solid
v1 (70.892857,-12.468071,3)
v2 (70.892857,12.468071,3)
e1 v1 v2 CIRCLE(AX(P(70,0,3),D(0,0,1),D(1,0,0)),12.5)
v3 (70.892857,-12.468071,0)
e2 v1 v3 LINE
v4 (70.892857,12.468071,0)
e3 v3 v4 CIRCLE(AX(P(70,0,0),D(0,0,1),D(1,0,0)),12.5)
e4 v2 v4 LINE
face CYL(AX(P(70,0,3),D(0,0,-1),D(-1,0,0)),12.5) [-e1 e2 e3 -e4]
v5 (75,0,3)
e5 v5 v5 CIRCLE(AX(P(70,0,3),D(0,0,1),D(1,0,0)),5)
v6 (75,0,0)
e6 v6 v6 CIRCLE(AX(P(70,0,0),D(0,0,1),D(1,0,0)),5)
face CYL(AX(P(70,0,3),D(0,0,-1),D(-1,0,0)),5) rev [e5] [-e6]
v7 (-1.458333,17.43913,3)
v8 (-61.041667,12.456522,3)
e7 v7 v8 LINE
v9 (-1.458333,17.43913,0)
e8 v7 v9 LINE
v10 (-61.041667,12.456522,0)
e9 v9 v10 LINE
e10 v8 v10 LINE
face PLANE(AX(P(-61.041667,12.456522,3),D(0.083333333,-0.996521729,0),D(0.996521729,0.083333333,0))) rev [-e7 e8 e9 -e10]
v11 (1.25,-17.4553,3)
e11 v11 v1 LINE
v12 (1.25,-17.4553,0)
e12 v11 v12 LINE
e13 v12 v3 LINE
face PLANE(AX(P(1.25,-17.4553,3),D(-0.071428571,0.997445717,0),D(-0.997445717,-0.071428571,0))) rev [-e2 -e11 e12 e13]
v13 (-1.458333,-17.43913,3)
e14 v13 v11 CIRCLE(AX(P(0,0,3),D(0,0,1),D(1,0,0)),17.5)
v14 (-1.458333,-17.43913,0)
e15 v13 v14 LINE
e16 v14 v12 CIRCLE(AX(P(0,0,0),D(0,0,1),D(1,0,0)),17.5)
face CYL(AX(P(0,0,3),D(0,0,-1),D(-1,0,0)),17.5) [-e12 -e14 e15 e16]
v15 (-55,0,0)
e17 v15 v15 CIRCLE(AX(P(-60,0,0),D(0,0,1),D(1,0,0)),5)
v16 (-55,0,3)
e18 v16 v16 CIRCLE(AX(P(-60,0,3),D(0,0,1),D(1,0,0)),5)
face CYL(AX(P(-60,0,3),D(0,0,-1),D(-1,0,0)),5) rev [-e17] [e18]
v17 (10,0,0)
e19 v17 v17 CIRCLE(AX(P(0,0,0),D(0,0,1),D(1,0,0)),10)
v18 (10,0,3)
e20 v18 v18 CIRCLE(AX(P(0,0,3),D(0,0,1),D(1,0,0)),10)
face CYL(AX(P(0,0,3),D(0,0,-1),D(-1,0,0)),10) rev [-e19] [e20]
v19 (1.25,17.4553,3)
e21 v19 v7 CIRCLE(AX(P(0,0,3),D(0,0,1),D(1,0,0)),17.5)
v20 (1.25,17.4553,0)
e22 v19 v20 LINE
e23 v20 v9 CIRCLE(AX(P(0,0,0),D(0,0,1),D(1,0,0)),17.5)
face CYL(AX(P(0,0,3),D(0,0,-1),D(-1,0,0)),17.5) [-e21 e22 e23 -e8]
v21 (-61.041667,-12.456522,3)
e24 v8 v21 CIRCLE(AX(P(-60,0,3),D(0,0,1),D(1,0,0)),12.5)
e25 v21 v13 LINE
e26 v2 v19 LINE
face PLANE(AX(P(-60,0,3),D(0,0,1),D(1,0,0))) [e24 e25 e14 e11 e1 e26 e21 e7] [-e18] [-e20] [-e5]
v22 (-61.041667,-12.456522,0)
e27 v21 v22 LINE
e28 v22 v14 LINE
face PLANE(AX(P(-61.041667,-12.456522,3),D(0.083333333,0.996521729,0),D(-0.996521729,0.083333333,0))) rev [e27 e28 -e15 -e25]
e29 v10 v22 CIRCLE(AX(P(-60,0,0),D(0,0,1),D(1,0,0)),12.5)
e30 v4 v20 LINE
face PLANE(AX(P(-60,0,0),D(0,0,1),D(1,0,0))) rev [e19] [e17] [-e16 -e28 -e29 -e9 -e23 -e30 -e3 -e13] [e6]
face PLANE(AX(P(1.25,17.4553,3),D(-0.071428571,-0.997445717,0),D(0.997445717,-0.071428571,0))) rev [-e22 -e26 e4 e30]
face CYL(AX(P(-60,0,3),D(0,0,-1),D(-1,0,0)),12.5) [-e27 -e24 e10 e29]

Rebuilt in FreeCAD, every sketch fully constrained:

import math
import FreeCAD as App
import Part
import Sketcher
from FreeCAD import Vector

doc = App.newDocument("Part")
params = doc.addObject("Spreadsheet::Sheet", "Params")
for row, (alias, value) in enumerate([
    ("sketch1_diameter", "10 mm"),
    ("sketch1_diameter2", "20 mm"),
    ("sketch1_radius", "12.5 mm"),
    ("sketch1_radius2", "17.5 mm"),
    ("pad1_length", "3 mm"),
], start=1):
    params.set(f"A{row}", alias)
    params.set(f"B{row}", "=" + value)
    params.setAlias(f"B{row}", alias)

body = doc.addObject("PartDesign::Body", "Body")

# Sketch on XY plane
sketch1 = doc.addObject("Sketcher::SketchObject", "Sketch")
body.addObject(sketch1)
sketch1.AttachmentSupport = (doc.XY_Plane, [""])
sketch1.MapMode = "FlatFace"
sketch1.addGeometry(Part.LineSegment(Vector(-1.5, 17.4, 0), Vector(-61, 12.5, 0)), False)
sketch1.addGeometry(Part.ArcOfCircle(Part.Circle(Vector(-60, 0, 0), Vector(0, 0, 1), 12.5), math.radians(95), math.radians(265)), False)
sketch1.addGeometry(Part.LineSegment(Vector(-61, -12.5, 0), Vector(-1.5, -17.4, 0)), False)
sketch1.addGeometry(Part.ArcOfCircle(Part.Circle(Vector(0, 0, 0), Vector(0, 0, 1), 17.5), math.radians(-94.78), math.radians(-85.9)), False)
sketch1.addGeometry(Part.LineSegment(Vector(1.2, -17.5, 0), Vector(70.9, -12.5, 0)), False)
sketch1.addGeometry(Part.ArcOfCircle(Part.Circle(Vector(70, 0, 0), Vector(0, 0, 1), 12.5), math.radians(-86), math.radians(86)), False)
sketch1.addGeometry(Part.LineSegment(Vector(70.9, 12.5, 0), Vector(1.2, 17.5, 0)), False)
sketch1.addGeometry(Part.ArcOfCircle(Part.Circle(Vector(0, 0, 0), Vector(0, 0, 1), 17.5), math.radians(85.9), math.radians(94.78)), False)
sketch1.addGeometry(Part.Circle(Vector(70, 0, 0), Vector(0, 0, 1), 5), False)
sketch1.addGeometry(Part.Circle(Vector(0, 0, 0), Vector(0, 0, 1), 10), False)
sketch1.addGeometry(Part.Circle(Vector(-60, 0, 0), Vector(0, 0, 1), 5), False)
sketch1.addConstraint(Sketcher.Constraint("Tangent", 0, 2, 1, 1))
sketch1.addConstraint(Sketcher.Constraint("Tangent", 1, 2, 2, 1))
sketch1.addConstraint(Sketcher.Constraint("Tangent", 2, 2, 3, 1))
sketch1.addConstraint(Sketcher.Constraint("Tangent", 3, 2, 4, 1))
sketch1.addConstraint(Sketcher.Constraint("Tangent", 4, 2, 5, 1))
sketch1.addConstraint(Sketcher.Constraint("Tangent", 5, 2, 6, 1))
sketch1.addConstraint(Sketcher.Constraint("Tangent", 6, 2, 7, 1))
sketch1.addConstraint(Sketcher.Constraint("Tangent", 7, 2, 0, 1))
sketch1.addConstraint(Sketcher.Constraint("Coincident", 3, 3, -1, 1))
sketch1.addConstraint(Sketcher.Constraint("Coincident", 7, 3, -1, 1))
sketch1.addConstraint(Sketcher.Constraint("Coincident", 9, 3, -1, 1))
sketch1.addConstraint(Sketcher.Constraint("Coincident", 8, 3, 5, 3))
sketch1.addConstraint(Sketcher.Constraint("Coincident", 10, 3, 1, 3))
sketch1.addConstraint(Sketcher.Constraint("Equal", 1, 5))
sketch1.addConstraint(Sketcher.Constraint("Equal", 3, 7))
sketch1.addConstraint(Sketcher.Constraint("Equal", 8, 10))
sketch1.addConstraint(Sketcher.Constraint("PointOnObject", 1, 3, -1))
sketch1.addConstraint(Sketcher.Constraint("PointOnObject", 5, 3, -1))
sketch1.addConstraint(Sketcher.Constraint("Diameter", 8, 10.0))
sketch1.addConstraint(Sketcher.Constraint("Diameter", 9, 20.0))
sketch1.addConstraint(Sketcher.Constraint("Radius", 1, 12.5))
sketch1.addConstraint(Sketcher.Constraint("Radius", 3, 17.5))
sketch1.addConstraint(Sketcher.Constraint("DistanceX", 1, 3, -1, 1, 60.0))
sketch1.addConstraint(Sketcher.Constraint("DistanceX", -1, 1, 5, 3, 70.0))
sketch1.setExpression("Constraints[18]", "Params.sketch1_diameter")
sketch1.setExpression("Constraints[19]", "Params.sketch1_diameter2")
sketch1.setExpression("Constraints[20]", "Params.sketch1_radius")
sketch1.setExpression("Constraints[21]", "Params.sketch1_radius2")
pad1 = doc.addObject("PartDesign::Pad", "Pad")
body.addObject(pad1)
pad1.Profile = sketch1
pad1.setExpression("Length", "Params.pad1_length")

doc.recompute()
